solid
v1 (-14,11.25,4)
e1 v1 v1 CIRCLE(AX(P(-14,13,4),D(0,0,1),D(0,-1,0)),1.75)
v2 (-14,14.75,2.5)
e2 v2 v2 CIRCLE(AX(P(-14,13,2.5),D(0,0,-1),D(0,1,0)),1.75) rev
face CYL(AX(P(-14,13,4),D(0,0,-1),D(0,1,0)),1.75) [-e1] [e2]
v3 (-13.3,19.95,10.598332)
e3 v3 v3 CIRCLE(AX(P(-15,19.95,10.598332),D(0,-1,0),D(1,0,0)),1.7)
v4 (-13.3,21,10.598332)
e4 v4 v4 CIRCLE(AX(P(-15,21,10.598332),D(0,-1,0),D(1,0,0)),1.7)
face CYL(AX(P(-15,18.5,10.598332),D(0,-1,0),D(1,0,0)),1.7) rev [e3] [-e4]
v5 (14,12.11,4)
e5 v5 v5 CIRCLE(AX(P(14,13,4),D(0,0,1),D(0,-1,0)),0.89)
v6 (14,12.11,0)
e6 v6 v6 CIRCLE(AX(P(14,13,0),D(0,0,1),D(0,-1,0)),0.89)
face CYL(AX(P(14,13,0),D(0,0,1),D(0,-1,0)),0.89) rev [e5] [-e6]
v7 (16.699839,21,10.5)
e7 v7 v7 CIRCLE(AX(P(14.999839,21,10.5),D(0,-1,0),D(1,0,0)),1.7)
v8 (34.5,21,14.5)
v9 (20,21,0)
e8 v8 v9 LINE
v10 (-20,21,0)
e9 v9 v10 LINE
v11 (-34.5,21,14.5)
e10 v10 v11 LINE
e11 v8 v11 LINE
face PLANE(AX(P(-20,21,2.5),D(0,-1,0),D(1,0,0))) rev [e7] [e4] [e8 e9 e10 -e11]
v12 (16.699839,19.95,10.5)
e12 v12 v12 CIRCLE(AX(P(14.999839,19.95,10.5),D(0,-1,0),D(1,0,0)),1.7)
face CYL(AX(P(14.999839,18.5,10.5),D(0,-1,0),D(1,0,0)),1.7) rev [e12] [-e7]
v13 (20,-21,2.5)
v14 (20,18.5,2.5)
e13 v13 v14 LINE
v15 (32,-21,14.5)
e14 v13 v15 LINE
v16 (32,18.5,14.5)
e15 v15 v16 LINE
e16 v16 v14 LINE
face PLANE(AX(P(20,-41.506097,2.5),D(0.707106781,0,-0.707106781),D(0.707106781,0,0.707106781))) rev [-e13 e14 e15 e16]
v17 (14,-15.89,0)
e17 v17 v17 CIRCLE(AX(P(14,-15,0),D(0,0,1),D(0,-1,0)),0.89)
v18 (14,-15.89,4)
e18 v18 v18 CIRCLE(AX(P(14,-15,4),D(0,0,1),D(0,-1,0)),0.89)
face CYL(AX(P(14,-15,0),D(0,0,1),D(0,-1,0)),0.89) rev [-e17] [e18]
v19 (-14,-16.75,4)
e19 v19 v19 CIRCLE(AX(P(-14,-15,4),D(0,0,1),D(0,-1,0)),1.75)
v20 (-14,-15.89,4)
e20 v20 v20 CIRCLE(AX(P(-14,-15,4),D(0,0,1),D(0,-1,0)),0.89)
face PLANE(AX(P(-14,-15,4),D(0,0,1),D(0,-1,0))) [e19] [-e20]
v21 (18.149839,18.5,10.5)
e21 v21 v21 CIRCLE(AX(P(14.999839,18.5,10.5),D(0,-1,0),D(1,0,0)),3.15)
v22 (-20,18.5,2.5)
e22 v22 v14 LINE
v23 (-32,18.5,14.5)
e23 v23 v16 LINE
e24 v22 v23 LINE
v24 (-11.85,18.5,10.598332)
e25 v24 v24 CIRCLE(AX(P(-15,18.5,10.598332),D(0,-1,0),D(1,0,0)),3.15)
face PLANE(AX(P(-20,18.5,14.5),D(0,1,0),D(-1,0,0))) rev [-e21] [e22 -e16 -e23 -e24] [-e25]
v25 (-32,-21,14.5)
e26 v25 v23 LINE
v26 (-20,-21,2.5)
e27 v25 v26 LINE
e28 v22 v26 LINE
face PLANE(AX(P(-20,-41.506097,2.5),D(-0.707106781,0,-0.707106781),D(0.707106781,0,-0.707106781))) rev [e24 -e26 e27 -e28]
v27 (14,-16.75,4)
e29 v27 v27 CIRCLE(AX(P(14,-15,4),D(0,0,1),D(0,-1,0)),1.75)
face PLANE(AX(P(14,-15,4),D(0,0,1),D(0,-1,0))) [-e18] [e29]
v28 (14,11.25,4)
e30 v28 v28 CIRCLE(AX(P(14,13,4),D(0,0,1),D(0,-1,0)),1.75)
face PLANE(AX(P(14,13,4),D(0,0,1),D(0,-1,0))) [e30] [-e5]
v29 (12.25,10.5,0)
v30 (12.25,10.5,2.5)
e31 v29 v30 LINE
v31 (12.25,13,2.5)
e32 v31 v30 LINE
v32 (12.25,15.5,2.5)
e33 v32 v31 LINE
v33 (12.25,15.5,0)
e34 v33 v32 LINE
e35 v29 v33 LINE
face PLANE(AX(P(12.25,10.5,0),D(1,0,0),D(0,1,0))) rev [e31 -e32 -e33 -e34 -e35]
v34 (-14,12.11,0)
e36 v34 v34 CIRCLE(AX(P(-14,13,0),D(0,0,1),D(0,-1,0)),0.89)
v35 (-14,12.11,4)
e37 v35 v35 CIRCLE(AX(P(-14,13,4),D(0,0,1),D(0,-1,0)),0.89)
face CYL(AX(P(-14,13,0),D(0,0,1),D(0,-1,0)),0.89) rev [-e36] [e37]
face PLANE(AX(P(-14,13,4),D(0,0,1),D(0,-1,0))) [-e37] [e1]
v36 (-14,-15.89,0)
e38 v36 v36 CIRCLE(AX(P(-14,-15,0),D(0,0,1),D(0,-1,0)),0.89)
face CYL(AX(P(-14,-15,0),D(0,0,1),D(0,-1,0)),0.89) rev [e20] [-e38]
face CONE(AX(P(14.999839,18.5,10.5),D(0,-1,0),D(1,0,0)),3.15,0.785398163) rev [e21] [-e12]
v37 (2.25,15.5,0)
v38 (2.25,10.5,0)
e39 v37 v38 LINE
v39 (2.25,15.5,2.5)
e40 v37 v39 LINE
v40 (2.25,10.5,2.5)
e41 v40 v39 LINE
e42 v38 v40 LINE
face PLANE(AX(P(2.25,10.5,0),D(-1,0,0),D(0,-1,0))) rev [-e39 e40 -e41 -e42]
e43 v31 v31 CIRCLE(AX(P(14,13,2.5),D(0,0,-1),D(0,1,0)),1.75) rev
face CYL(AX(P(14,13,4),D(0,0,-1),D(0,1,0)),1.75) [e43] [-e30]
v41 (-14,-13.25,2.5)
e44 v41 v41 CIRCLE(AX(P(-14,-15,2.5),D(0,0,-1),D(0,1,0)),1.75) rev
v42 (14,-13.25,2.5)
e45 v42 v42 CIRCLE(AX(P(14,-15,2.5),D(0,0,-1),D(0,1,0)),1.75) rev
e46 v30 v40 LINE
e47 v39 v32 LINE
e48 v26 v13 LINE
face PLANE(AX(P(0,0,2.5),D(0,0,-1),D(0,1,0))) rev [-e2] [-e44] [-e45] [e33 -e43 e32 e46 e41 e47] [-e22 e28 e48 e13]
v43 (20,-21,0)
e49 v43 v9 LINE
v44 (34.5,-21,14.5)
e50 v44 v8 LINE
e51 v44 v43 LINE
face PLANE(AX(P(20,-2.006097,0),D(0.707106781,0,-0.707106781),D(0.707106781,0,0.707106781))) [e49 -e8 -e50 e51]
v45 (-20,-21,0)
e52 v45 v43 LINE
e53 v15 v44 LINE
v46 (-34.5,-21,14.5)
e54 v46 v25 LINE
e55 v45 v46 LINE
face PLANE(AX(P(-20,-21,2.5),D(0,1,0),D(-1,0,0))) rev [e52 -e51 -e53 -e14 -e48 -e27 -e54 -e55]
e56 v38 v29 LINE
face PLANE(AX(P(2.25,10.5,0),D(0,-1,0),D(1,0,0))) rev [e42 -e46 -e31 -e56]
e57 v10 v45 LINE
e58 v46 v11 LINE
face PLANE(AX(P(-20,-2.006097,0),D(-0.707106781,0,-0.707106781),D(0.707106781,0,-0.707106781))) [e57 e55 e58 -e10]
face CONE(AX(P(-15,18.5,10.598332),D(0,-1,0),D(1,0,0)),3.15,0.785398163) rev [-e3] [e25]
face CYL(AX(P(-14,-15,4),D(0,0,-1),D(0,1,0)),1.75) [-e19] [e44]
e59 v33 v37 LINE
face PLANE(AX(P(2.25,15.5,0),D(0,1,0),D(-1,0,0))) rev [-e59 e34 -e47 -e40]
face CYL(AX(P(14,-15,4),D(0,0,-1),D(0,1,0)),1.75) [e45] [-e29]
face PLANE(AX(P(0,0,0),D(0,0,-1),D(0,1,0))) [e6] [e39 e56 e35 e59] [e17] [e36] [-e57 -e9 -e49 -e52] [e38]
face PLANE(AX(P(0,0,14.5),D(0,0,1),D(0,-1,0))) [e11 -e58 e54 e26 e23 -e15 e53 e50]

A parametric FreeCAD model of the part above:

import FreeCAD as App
import Part
import Sketcher

V = App.Vector
Q = App.Units.Quantity


def add_polygon(sketch, points):
    """Adds a closed chain of lines whose ends are joined by coincident constraints."""
    first, n = sketch.GeometryCount, len(points)
    for a, b in zip(points, points[1:] + points[:1]):
        sketch.addGeometry(Part.LineSegment(App.Vector(*a, 0), App.Vector(*b, 0)), False)
    for i in range(n):
        sketch.addConstraint(Sketcher.Constraint("Coincident", first + i, 2, first + (i + 1) % n, 1))

doc = App.newDocument("Part")
body = doc.addObject("PartDesign::Body", "Body")

sketch1 = doc.addObject("Sketcher::SketchObject", "Sketch")
body.addObject(sketch1)
sketch1.AttachmentSupport = (doc.XZ_Plane, [""])
sketch1.MapMode = "FlatFace"
add_polygon(sketch1, [(-20, -21), (-20, 21), (20, 21), (20, -21)])
sketch1.addConstraint([
    Sketcher.Constraint("Vertical", 0),
    Sketcher.Constraint("Horizontal", 1),
    Sketcher.Constraint("Vertical", 2),
    Sketcher.Constraint("Horizontal", 3),
    Sketcher.Constraint("Symmetric", 0, 2, 2, 2, -1, 1),
    Sketcher.Constraint("DistanceX", 1, 1, 1, 2, 40.0),
    Sketcher.Constraint("DistanceY", 0, 1, 0, 2, 42.0),
])
pad1 = doc.addObject("PartDesign::Pad", "Pad")
body.addObject(pad1)
pad1.Profile = sketch1
pad1.Length = 2.5
pad1.Reversed = True

sketch2 = doc.addObject("Sketcher::SketchObject", "Sketch001")
body.addObject(sketch2)
sketch2.AttachmentSupport = (doc.XZ_Plane, [""])
sketch2.MapMode = "FlatFace"
sketch2.AttachmentOffset = App.Placement(V(0, 0, -2.5), App.Rotation())
add_polygon(sketch2, [(-20, -21), (-20, -18.5), (20, -18.5), (20, -21)])
sketch2.addConstraint([
    Sketcher.Constraint("Vertical", 0),
    Sketcher.Constraint("Horizontal", 1),
    Sketcher.Constraint("Vertical", 2),
    Sketcher.Constraint("Horizontal", 3),
    Sketcher.Constraint("DistanceX", 1, 1, 1, 2, 40.0),
    Sketcher.Constraint("DistanceY", 0, 1, 0, 2, 2.5),
    Sketcher.Constraint("DistanceX", 0, 2, -1, 1, 20.0),
    Sketcher.Constraint("DistanceY", 2, 2, -1, 1, 21.0),
])
pad2 = doc.addObject("PartDesign::Pad", "Pad001")
body.addObject(pad2)
pad2.Profile = sketch2
pad2.Length = 12
pad2.Reversed = True

sketch3 = doc.addObject("Sketcher::SketchObject", "Sketch002")
body.addObject(sketch3)
sketch3.AttachmentSupport = (doc.XZ_Plane, [""])
sketch3.MapMode = "FlatFace"
sketch3.AttachmentOffset = App.Placement(V(0, 0, -2.5), App.Rotation())
sketch3.addGeometry([
    Part.Circle(V(14, -13, 0), V(0, 0, 1), 1.8),
    Part.Circle(V(-14, -13, 0), V(0, 0, 1), 1.8),
    Part.Circle(V(-14, 15, 0), V(0, 0, 1), 1.8),
    Part.Circle(V(14, 15, 0), V(0, 0, 1), 1.8),
], False)
sketch3.addConstraint([
    Sketcher.Constraint("Equal", 0, 1),
    Sketcher.Constraint("Equal", 1, 2),
    Sketcher.Constraint("Equal", 2, 3),
    Sketcher.Constraint("Symmetric", 0, 3, 1, 3, -2),
    Sketcher.Constraint("Symmetric", 2, 3, 3, 3, -2),
    Sketcher.Constraint("Vertical", 1, 3, 2, 3),
    Sketcher.Constraint("Diameter", 0, 3.5),
    Sketcher.Constraint("DistanceX", -1, 1, 0, 3, 14.0),
    Sketcher.Constraint("DistanceY", 0, 3, -1, 1, 13.0),
    Sketcher.Constraint("DistanceY", -1, 1, 2, 3, 15.0),
])
pad3 = doc.addObject("PartDesign::Pad", "Pad002")
body.addObject(pad3)
pad3.Profile = sketch3
pad3.Length = 1.5
pad3.Reversed = True

sketch4 = doc.addObject("Sketcher::SketchObject", "Sketch003")
body.addObject(sketch4)
sketch4.AttachmentSupport = (doc.XZ_Plane, [""])
sketch4.MapMode = "FlatFace"
sketch4.AttachmentOffset = App.Placement(V(0, 0, -4), App.Rotation())
sketch4.addGeometry([
    Part.Circle(V(-14, -13, 0), V(0, 0, 1), 0.9),
    Part.Circle(V(14, -13, 0), V(0, 0, 1), 0.9),
    Part.Circle(V(14, 15, 0), V(0, 0, 1), 0.9),
    Part.Circle(V(-14, 15, 0), V(0, 0, 1), 0.9),
], False)
sketch4.addConstraint([
    Sketcher.Constraint("Equal", 0, 1),
    Sketcher.Constraint("Equal", 1, 2),
    Sketcher.Constraint("Equal", 2, 3),
    Sketcher.Constraint("Symmetric", 0, 3, 1, 3, -2),
    Sketcher.Constraint("Symmetric", 2, 3, 3, 3, -2),
    Sketcher.Constraint("Vertical", 1, 3, 2, 3),
    Sketcher.Constraint("Diameter", 0, 1.78),
    Sketcher.Constraint("DistanceX", 0, 3, -1, 1, 14.0),
    Sketcher.Constraint("DistanceY", 0, 3, -1, 1, 13.0),
    Sketcher.Constraint("DistanceY", -1, 1, 2, 3, 15.0),
])
pocket1 = doc.addObject("PartDesign::Pocket", "Pocket")
body.addObject(pocket1)
pocket1.Profile = sketch4
pocket1.Type = "ThroughAll"
pocket1.Reversed = True

sketch5 = doc.addObject("Sketcher::SketchObject", "Sketch004")
body.addObject(sketch5)
sketch5.AttachmentSupport = (doc.XZ_Plane, [""])
sketch5.MapMode = "FlatFace"
sketch5.AttachmentOffset = App.Placement(V(0, 0, -4), App.Rotation())
add_polygon(sketch5, [(2, -16), (2, -10), (12, -10), (12, -16)])
sketch5.addConstraint([
    Sketcher.Constraint("Vertical", 0),
    Sketcher.Constraint("Horizontal", 1),
    Sketcher.Constraint("Vertical", 2),
    Sketcher.Constraint("Horizontal", 3),
    Sketcher.Constraint("DistanceX", 1, 1, 1, 2, 10.0),
    Sketcher.Constraint("DistanceY", 0, 1, 0, 2, 5.0),
    Sketcher.Constraint("DistanceY", 0, 2, -1, 1, 10.5),
    Sketcher.Constraint("DistanceX", -1, 1, 0, 2, 2.25),
])
pocket2 = doc.addObject("PartDesign::Pocket", "Pocket001")
body.addObject(pocket2)
pocket2.Profile = sketch5
pocket2.Type = "ThroughAll"
pocket2.Reversed = True

sketch6 = doc.addObject("Sketcher::SketchObject", "Sketch005")
body.addObject(sketch6)
sketch6.AttachmentSupport = (doc.YZ_Plane, [""])
sketch6.MapMode = "FlatFace"
sketch6.AttachmentOffset = App.Placement(V(0, 0, -15), App.Rotation())
add_polygon(sketch6, [(10.6, -21), (10.6, -18.5), (7.4, -18.5), (8.9, -19.9), (8.9, -21)])
sketch6.addGeometry(Part.LineSegment(V(10.6, -18.5, 0), V(10.6, -21, 0)), True)
sketch6.addConstraint([
    Sketcher.Constraint("Vertical", 0),
    Sketcher.Constraint("Horizontal", 1),
    Sketcher.Constraint("Vertical", 3),
    Sketcher.Constraint("Horizontal", 4),
    Sketcher.Constraint("Vertical", 5),
    Sketcher.Constraint("Coincident", 5, 1, 0, 2),
    Sketcher.Constraint("Horizontal", 3, 2, 5, 2),
    Sketcher.Constraint("Angle", 2, Q("-45 deg")),
    Sketcher.Constraint("DistanceX", 4, 1, 4, 2, 1.7),
    Sketcher.Constraint("DistanceY", 0, 1, 0, 2, 2.5),
    Sketcher.Constraint("DistanceY", 3, 2, -1, 1, 21.0),
    Sketcher.Constraint("DistanceX", 1, 2, 1, 1, 3.15),
    Sketcher.Constraint("DistanceX", -1, 1, 0, 2, 10.598332),
])
groove = doc.addObject("PartDesign::Groove", "Groove")
body.addObject(groove)
groove.Profile = sketch6
groove.ReferenceAxis = (sketch6, ["Axis0"])
groove.Angle = 360
doc.recompute()

datumline = doc.addObject("PartDesign::Line", "DatumLine")
body.addObject(datumline)
datumline.Placement = App.Placement(V(0, 0, 0), App.Rotation(V(0, 0, 1), V(0.999994628, -0.003277729, 0)))
linearpattern = doc.addObject("PartDesign::LinearPattern", "LinearPattern")
body.addObject(linearpattern)
linearpattern.Originals = [groove]
linearpattern.Direction = (datumline, [""])
linearpattern.Mode = "offset"
linearpattern.Offset = 30
linearpattern.Occurrences = 2
body.Tip = linearpattern

sketch7 = doc.addObject("Sketcher::SketchObject", "Sketch006")
body.addObject(sketch7)
sketch7.AttachmentSupport = (doc.XY_Plane, [""])
sketch7.MapMode = "FlatFace"
sketch7.AttachmentOffset = App.Placement(V(0, 0, -21), App.Rotation())
add_polygon(sketch7, [(-20, 0), (-34, 14), (-20, 14)])
add_polygon(sketch7, [(34, 14), (20, 0), (20, 14)])
sketch7.addConstraint([
    Sketcher.Constraint("Horizontal", 1),
    Sketcher.Constraint("Vertical", 2),
    Sketcher.Constraint("Vertical", 4),
    Sketcher.Constraint("Horizontal", 5),
    Sketcher.Constraint("Symmetric", 2, 2, 3, 2, -1, 1),
    Sketcher.Constraint("Symmetric", 0, 2, 5, 2, -2),
    Sketcher.Constraint("PointOnObject", 2, 2, -1),
    Sketcher.Constraint("Perpendicular", 0, 3),
    Sketcher.Constraint("DistanceX", 1, 1, 1, 2, 14.5),
    Sketcher.Constraint("DistanceX", 1, 2, -1, 1, 20.0),
])
pad4 = doc.addObject("PartDesign::Pad", "Pad003")
body.addObject(pad4)
pad4.Profile = sketch7
pad4.Length = 2.5

sketch8 = doc.addObject("Sketcher::SketchObject", "Sketch007")
body.addObject(sketch8)
sketch8.AttachmentSupport = (doc.XY_Plane, [""])
sketch8.MapMode = "FlatFace"
sketch8.AttachmentOffset = App.Placement(V(0, 0, -18.5), App.Rotation())
add_polygon(sketch8, [(32, 14.5), (20, 2.5), (20, 0), (34.5, 14.5)])
add_polygon(sketch8, [(-20, 2.5), (-32, 14.5), (-34.5, 14.5), (-20, 0)])
sketch8.addConstraint([
    Sketcher.Constraint("Vertical", 1),
    Sketcher.Constraint("Horizontal", 3),
    Sketcher.Constraint("Horizontal", 5),
    Sketcher.Constraint("Vertical", 7),
    Sketcher.Constraint("Symmetric", 1, 2, 6, 2, -1, 1),
    Sketcher.Constraint("Symmetric", 3, 2, 4, 2, -2),
    Sketcher.Constraint("PointOnObject", 1, 2, -1),
    Sketcher.Constraint("Parallel", 0, 2),
    Sketcher.Constraint("Perpendicular", 2, 4),
    Sketcher.Constraint("Parallel", 4, 6),
    Sketcher.Constraint("Horizontal", 0, 2, 7, 2),
    Sketcher.Constraint("DistanceX", 3, 2, 3, 1, 2.5),
    Sketcher.Constraint("DistanceX", -1, 1, 0, 2, 20.0),
    Sketcher.Constraint("DistanceX", -1, 1, 3, 2, 32.0),
])
pad5 = doc.addObject("PartDesign::Pad", "Pad004")
body.addObject(pad5)
pad5.Profile = sketch8
pad5.Length = 39.5
body2 = doc.addObject("PartDesign::Body", "Body001")
doc.recompute()

body.Placement = App.Placement(V(0, 0, 0), App.Rotation(V(1, 0, 0), 90))
boolean = doc.addObject("PartDesign::Boolean", "Boolean")
body2.addObject(boolean)
boolean.Type = "Fuse"
boolean.addObjects([body])

doc.recompute()
